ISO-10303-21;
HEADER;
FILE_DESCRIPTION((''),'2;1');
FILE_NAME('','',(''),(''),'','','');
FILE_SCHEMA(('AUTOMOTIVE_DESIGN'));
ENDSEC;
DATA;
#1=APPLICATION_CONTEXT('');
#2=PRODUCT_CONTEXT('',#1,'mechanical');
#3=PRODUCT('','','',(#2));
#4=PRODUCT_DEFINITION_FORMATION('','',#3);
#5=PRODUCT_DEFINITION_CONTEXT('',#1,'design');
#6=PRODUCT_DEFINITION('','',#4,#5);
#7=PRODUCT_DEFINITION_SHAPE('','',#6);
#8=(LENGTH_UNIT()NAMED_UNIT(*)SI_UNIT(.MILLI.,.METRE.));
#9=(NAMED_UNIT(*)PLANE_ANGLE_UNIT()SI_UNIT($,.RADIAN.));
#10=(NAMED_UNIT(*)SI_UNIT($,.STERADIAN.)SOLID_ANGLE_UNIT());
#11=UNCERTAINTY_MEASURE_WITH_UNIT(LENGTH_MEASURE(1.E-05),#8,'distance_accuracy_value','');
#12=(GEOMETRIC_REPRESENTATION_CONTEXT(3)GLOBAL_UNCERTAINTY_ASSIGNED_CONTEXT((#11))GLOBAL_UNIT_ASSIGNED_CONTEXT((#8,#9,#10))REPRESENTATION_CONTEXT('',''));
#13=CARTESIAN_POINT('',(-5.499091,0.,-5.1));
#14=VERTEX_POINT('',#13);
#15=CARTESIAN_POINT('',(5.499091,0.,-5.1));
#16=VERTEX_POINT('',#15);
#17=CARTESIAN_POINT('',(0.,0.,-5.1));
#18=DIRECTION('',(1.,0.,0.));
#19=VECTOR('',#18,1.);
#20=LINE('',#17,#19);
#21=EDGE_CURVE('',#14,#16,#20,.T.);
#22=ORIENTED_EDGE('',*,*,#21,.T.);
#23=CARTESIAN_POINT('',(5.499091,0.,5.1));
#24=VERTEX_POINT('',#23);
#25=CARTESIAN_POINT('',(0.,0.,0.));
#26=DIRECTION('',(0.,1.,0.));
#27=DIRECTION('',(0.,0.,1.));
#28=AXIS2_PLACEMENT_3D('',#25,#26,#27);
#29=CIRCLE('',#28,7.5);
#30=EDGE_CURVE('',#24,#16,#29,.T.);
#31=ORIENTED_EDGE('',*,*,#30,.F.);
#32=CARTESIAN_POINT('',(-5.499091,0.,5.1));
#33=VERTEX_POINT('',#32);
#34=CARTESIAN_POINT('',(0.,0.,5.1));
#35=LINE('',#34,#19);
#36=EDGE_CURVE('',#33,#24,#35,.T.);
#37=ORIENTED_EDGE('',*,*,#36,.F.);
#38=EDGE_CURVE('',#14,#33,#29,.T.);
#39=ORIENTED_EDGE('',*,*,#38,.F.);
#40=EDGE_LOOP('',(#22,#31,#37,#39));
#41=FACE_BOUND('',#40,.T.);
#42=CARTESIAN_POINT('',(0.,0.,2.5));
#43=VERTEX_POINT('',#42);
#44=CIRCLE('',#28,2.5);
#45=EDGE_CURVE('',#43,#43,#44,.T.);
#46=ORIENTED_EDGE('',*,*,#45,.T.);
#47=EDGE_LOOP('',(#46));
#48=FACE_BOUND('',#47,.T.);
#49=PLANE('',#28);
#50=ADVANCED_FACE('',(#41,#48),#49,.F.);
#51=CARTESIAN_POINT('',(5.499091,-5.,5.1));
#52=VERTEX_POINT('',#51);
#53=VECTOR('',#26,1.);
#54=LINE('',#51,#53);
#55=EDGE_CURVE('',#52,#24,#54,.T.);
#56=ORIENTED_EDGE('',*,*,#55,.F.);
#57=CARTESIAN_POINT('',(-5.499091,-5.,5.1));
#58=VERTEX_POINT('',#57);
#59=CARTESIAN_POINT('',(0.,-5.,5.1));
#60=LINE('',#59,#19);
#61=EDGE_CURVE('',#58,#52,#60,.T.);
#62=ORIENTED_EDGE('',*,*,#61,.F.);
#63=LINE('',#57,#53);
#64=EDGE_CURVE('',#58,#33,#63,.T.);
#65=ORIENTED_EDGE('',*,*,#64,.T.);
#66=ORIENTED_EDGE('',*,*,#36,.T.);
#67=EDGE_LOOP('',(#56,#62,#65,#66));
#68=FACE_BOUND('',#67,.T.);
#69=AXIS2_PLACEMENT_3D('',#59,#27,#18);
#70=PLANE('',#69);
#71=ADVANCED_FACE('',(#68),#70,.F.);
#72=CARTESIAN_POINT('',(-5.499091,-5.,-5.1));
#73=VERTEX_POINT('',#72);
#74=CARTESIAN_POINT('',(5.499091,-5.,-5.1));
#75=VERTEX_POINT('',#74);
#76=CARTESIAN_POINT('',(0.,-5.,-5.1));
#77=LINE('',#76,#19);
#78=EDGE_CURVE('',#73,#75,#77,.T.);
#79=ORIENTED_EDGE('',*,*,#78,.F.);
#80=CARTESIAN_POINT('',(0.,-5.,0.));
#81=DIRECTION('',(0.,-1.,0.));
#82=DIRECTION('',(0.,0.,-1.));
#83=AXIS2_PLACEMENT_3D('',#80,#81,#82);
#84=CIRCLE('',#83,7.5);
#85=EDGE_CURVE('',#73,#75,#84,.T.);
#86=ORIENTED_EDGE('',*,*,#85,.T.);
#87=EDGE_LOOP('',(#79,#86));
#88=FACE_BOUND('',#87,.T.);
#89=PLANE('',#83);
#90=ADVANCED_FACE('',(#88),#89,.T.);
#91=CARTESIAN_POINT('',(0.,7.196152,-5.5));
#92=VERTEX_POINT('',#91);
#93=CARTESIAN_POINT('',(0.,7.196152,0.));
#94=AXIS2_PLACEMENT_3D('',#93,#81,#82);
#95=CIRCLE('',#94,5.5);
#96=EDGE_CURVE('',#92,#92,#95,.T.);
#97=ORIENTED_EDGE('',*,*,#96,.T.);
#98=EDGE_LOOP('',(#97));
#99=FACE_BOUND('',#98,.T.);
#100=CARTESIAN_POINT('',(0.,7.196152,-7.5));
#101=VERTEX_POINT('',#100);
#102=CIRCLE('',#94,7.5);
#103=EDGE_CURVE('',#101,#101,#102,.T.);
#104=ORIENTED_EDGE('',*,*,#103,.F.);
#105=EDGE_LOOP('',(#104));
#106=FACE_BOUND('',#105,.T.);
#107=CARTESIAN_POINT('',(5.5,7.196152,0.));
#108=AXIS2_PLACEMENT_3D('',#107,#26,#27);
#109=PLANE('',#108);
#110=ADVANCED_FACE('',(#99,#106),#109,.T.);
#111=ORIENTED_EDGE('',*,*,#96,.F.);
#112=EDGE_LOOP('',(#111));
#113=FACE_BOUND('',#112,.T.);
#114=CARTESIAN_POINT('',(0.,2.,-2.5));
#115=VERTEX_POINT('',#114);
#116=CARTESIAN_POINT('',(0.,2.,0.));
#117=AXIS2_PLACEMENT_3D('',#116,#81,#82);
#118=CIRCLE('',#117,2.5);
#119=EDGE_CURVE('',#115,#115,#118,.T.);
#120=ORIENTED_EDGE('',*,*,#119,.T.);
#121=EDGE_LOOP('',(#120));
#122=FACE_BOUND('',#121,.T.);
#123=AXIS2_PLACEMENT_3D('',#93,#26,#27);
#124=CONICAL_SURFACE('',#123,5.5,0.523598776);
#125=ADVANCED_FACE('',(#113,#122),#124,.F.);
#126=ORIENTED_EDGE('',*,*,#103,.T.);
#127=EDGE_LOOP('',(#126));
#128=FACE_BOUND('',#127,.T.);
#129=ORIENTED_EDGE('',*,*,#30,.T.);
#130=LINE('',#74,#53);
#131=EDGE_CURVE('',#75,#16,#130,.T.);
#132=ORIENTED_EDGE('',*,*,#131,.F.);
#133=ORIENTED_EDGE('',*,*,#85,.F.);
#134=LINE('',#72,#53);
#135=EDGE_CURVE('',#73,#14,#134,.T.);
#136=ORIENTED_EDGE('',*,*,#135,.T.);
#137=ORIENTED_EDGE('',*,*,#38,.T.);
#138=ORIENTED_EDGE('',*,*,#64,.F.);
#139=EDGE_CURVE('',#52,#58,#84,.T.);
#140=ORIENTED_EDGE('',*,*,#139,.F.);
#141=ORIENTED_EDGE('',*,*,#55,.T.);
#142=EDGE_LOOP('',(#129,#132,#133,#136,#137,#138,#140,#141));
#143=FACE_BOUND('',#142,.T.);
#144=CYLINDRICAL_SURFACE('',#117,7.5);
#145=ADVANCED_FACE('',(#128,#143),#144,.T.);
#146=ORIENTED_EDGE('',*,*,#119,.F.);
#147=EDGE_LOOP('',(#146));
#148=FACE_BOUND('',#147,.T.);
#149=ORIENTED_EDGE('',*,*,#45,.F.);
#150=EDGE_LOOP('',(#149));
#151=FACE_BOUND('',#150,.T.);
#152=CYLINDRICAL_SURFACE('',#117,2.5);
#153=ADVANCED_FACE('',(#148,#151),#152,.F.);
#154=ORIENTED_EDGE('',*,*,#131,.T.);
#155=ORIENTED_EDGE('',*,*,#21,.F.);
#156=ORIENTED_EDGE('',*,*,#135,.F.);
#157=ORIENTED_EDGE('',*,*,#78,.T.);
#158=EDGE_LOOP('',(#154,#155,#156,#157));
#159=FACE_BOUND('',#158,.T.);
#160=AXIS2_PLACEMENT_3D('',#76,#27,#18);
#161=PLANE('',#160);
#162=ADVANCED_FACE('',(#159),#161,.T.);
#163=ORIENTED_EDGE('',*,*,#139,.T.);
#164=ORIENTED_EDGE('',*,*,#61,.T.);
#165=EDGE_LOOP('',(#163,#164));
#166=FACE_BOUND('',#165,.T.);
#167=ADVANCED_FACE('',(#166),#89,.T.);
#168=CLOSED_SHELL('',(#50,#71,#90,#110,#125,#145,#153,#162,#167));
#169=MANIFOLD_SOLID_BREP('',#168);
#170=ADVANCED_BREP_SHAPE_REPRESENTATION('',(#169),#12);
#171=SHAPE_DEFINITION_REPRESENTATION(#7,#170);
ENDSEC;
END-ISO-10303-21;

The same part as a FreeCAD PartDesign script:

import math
import FreeCAD as App
import Part
import Sketcher
Q = App.Units.Quantity


def add_polygon(sketch, points):
    """Adds a closed chain of lines whose ends are joined by coincident constraints."""
    first, n = sketch.GeometryCount, len(points)
    for a, b in zip(points, points[1:] + points[:1]):
        sketch.addGeometry(Part.LineSegment(App.Vector(*a, 0), App.Vector(*b, 0)), False)
    for i in range(n):
        sketch.addConstraint(Sketcher.Constraint("Coincident", first + i, 2, first + (i + 1) % n, 1))

doc = App.newDocument("Part")
body = doc.addObject("PartDesign::Body", "Body")

sketch1 = body.newObject("Sketcher::SketchObject", "Sketch")
sketch1.AttachmentSupport = (doc.getObject("XZ_Plane"), [""])
sketch1.MapMode = "FlatFace"
sketch1.addGeometry(Part.Circle(App.Vector(0, 0, 0), App.Vector(0, 0, 1), 7.5), False)
sketch1.addGeometry(Part.Circle(App.Vector(0, 0, 0), App.Vector(0, 0, 1), 2.5), False)
sketch1.addConstraint(Sketcher.Constraint("Coincident", 0, 3, -1, 1))
sketch1.addConstraint(Sketcher.Constraint("Coincident", 1, 3, -1, 1))
sketch1.addConstraint(Sketcher.Constraint("Diameter", 0, Q("15 mm")))
sketch1.addConstraint(Sketcher.Constraint("Diameter", 1, Q("5 mm")))
pad1 = body.newObject("PartDesign::Pad", "Pad")
pad1.Profile = sketch1
pad1.Length = 2
pad1.Reversed = True

sketch2 = body.newObject("Sketcher::SketchObject", "Sketch001")
sketch2.AttachmentSupport = (doc.getObject("XZ_Plane"), [""])
sketch2.MapMode = "FlatFace"
sketch2.AttachmentOffset = App.Placement(App.Vector(0, 0, 5), App.Rotation())
sketch2.addGeometry(Part.ArcOfCircle(Part.Circle(App.Vector(0, 0, 0), App.Vector(0, 0, 1), 7.5), math.radians(42.843643), math.radians(137.156357)), False)
sketch2.addGeometry(Part.LineSegment(App.Vector(-5.499091, 5.1, 0), App.Vector(5.499091, 5.1, 0)), False)
sketch2.addGeometry(Part.LineSegment(App.Vector(5.499091, -5.1, 0), App.Vector(-5.499091, -5.1, 0)), False)
sketch2.addGeometry(Part.ArcOfCircle(Part.Circle(App.Vector(0, 0, 0), App.Vector(0, 0, 1), 7.5), math.radians(-137.156357), math.radians(-42.843643)), False)
sketch2.addConstraint(Sketcher.Constraint("Coincident", 0, 1, 1, 2))
sketch2.addConstraint(Sketcher.Constraint("Coincident", 1, 1, 0, 2))
sketch2.addConstraint(Sketcher.Constraint("Coincident", 2, 1, 3, 2))
sketch2.addConstraint(Sketcher.Constraint("Coincident", 3, 1, 2, 2))
sketch2.addConstraint(Sketcher.Constraint("Horizontal", 1))
sketch2.addConstraint(Sketcher.Constraint("Horizontal", 2))
sketch2.addConstraint(Sketcher.Constraint("Coincident", 0, 3, -1, 1))
sketch2.addConstraint(Sketcher.Constraint("Coincident", 3, 3, -1, 1))
sketch2.addConstraint(Sketcher.Constraint("Equal", 0, 3))
sketch2.addConstraint(Sketcher.Constraint("Vertical", 0, 1, 2, 1))
sketch2.addConstraint(Sketcher.Constraint("Radius", 0, Q("7.5 mm")))
sketch2.addConstraint(Sketcher.Constraint("DistanceY", -1, 1, 0, 1, Q("5.1 mm")))
pad2 = body.newObject("PartDesign::Pad", "Pad001")
pad2.Profile = sketch2
pad2.Length = 5
pad2.Reversed = True

sketch3 = body.newObject("Sketcher::SketchObject", "Sketch002")
sketch3.AttachmentSupport = (doc.getObject("XY_Plane"), [""])
sketch3.MapMode = "FlatFace"
add_polygon(sketch3, [(5.5, 7.196152), (2.5, 2), (7.5, 2), (7.5, 7.196152)])
sketch3.addConstraint(Sketcher.Constraint("Horizontal", 1))
sketch3.addConstraint(Sketcher.Constraint("Vertical", 2))
sketch3.addConstraint(Sketcher.Constraint("Horizontal", 3))
sketch3.addConstraint(Sketcher.Constraint("DistanceX", 1, 1, 1, 2, Q("5 mm")))
sketch3.addConstraint(Sketcher.Constraint("DistanceX", 3, 2, 3, 1, Q("2 mm")))
sketch3.addConstraint(Sketcher.Constraint("Angle", 0, Q("-120 deg")))
sketch3.addConstraint(Sketcher.Constraint("DistanceY", -1, 1, 0, 2, Q("2 mm")))
sketch3.addConstraint(Sketcher.Constraint("DistanceX", -1, 1, 0, 2, Q("2.5 mm")))
revolution = body.newObject("PartDesign::Revolution", "Revolution")
revolution.Profile = sketch3
revolution.ReferenceAxis = (sketch3, ["V_Axis"])
revolution.Angle = 360

doc.recompute()
